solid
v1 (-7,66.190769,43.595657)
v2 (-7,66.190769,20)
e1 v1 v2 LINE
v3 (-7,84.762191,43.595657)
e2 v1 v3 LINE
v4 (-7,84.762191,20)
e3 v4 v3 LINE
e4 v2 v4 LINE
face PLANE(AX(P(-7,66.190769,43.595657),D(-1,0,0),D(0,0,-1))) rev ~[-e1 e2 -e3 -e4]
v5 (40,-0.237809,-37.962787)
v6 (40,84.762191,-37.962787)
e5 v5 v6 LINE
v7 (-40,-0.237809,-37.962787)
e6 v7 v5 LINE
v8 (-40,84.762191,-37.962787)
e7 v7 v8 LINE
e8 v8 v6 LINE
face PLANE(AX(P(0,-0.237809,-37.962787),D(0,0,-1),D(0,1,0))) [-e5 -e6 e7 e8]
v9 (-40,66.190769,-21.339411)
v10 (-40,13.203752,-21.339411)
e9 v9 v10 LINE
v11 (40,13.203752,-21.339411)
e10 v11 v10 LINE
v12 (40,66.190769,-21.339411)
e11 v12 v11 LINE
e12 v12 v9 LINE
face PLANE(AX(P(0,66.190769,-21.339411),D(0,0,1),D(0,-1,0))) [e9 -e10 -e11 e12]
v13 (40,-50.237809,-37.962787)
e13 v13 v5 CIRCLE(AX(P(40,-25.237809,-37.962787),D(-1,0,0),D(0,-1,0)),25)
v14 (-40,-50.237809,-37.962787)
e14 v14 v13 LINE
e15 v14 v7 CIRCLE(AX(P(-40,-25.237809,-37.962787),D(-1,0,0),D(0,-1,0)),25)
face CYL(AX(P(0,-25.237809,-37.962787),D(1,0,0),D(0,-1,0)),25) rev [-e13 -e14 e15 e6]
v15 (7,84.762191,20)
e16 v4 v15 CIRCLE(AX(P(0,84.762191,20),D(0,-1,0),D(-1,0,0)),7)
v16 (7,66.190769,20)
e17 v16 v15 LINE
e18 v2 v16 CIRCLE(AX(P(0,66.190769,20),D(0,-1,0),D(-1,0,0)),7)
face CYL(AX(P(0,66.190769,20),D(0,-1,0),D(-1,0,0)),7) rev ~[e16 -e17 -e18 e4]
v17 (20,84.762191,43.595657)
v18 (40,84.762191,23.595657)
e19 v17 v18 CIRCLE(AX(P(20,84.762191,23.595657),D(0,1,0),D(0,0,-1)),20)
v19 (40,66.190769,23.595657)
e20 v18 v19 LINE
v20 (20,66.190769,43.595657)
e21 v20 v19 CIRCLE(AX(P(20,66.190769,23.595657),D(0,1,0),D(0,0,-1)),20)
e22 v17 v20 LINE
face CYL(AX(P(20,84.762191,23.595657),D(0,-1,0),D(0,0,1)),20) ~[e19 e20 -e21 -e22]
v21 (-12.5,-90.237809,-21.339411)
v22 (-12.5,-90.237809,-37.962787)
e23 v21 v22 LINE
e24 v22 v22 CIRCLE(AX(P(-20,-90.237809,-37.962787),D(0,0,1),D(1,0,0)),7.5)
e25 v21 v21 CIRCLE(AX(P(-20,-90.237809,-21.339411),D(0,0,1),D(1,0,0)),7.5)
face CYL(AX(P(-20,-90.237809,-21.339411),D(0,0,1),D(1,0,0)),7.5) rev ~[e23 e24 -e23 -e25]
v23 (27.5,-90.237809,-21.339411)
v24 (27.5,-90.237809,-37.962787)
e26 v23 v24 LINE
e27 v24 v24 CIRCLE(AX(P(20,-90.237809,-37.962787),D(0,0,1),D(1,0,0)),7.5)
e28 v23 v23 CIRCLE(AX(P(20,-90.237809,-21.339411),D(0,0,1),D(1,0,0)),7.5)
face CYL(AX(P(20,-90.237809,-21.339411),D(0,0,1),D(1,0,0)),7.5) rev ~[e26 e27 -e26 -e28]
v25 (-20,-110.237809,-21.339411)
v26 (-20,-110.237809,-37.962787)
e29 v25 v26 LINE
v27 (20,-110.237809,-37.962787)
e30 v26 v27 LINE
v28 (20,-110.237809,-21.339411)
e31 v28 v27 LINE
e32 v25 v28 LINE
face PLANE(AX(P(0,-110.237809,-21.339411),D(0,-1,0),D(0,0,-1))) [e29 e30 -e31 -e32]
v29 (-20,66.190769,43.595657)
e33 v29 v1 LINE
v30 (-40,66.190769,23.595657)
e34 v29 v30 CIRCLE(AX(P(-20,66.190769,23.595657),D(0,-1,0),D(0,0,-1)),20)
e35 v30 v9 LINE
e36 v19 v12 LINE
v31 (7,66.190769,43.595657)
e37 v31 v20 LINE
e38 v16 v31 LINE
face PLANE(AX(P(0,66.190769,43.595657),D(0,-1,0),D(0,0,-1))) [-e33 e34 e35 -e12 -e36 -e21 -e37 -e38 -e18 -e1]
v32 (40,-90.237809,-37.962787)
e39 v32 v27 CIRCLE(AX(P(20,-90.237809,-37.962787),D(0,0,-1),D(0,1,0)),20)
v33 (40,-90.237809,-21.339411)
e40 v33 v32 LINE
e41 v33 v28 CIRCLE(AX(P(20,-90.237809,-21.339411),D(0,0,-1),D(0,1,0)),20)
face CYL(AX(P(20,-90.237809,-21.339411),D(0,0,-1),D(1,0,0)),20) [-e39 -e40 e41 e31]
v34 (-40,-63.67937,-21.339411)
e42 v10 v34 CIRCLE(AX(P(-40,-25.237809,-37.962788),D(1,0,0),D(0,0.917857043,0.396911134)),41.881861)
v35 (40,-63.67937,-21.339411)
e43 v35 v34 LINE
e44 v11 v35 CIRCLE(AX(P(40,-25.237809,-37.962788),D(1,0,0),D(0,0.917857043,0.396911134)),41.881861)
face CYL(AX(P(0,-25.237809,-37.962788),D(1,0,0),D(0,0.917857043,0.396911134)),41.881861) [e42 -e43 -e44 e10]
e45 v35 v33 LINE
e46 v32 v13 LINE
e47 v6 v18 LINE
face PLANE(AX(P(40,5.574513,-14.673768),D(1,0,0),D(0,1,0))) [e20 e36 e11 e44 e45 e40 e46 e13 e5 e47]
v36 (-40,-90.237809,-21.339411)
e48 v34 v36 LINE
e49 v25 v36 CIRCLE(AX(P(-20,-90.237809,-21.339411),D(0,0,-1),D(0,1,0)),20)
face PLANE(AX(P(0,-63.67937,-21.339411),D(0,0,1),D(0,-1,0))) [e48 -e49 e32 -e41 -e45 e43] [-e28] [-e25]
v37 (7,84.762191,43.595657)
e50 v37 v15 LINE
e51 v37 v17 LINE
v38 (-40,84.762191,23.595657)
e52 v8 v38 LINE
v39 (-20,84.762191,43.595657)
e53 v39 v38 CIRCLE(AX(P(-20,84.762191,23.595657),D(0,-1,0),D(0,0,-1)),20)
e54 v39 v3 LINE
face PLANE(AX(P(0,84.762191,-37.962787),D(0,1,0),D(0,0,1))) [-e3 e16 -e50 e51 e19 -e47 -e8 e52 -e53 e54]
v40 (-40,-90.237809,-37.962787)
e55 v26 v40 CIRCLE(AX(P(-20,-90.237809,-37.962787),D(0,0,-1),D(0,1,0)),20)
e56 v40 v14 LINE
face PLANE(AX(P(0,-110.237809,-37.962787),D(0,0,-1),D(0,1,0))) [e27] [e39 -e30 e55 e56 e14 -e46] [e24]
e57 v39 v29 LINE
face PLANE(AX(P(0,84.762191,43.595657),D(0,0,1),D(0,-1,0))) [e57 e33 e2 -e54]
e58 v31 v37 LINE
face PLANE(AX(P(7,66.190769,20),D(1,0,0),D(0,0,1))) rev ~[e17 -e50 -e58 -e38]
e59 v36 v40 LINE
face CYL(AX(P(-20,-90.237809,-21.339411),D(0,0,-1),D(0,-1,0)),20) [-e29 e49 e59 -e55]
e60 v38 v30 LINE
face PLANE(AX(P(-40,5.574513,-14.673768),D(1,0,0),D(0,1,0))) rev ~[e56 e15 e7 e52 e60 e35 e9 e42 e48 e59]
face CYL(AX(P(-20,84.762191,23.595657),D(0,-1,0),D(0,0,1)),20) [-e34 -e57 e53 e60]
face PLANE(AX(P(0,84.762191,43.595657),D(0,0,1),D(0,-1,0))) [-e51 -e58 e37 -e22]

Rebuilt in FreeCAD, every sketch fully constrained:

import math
import FreeCAD as App
import Part
import Sketcher
from FreeCAD import Vector
Q = App.Units.Quantity


def edges_at(feature, points):
    """Names of the edges that pass closest to the given points."""
    edges = feature.Shape.Edges
    near = lambda p: min(range(len(edges)), key=lambda i: edges[i].distToShape(Part.Vertex(*p))[0])
    return sorted({f"Edge{near(p) + 1}" for p in points})

doc = App.newDocument("Part")
body = doc.addObject("PartDesign::Body", "Body")

sketch1 = body.newObject("Sketcher::SketchObject", "Sketch")
sketch1.AttachmentSupport = (doc.getObject("YZ_Plane"), [""])
sketch1.MapMode = "FlatFace"
sketch1.addGeometry(Part.LineSegment(Vector(-64, -21, 0), Vector(-110, -21, 0)), False)
sketch1.addGeometry(Part.LineSegment(Vector(-110, -21, 0), Vector(-110, -38, 0)), False)
sketch1.addGeometry(Part.LineSegment(Vector(-110, -38, 0), Vector(-50, -38, 0)), False)
sketch1.addGeometry(Part.ArcOfCircle(Part.Circle(Vector(-25, -38, 0), Vector(0, 0, 1), 25), math.radians(0), math.radians(180)), False)
sketch1.addGeometry(Part.LineSegment(Vector(0, -38, 0), Vector(85, -38, 0)), False)
sketch1.addGeometry(Part.LineSegment(Vector(85, -38, 0), Vector(85, 44, 0)), False)
sketch1.addGeometry(Part.LineSegment(Vector(85, 44, 0), Vector(66, 44, 0)), False)
sketch1.addGeometry(Part.LineSegment(Vector(66, 44, 0), Vector(66, -21, 0)), False)
sketch1.addGeometry(Part.LineSegment(Vector(66, -21, 0), Vector(13, -21, 0)), False)
sketch1.addGeometry(Part.ArcOfCircle(Part.Circle(Vector(-25, -38, 0), Vector(0, 0, 1), 42), math.radians(23), math.radians(157)), False)
sketch1.addConstraint(Sketcher.Constraint("Coincident", 0, 2, 1, 1))
sketch1.addConstraint(Sketcher.Constraint("Coincident", 1, 2, 2, 1))
sketch1.addConstraint(Sketcher.Constraint("Coincident", 2, 2, 3, 2))
sketch1.addConstraint(Sketcher.Constraint("Coincident", 3, 1, 4, 1))
sketch1.addConstraint(Sketcher.Constraint("Coincident", 4, 2, 5, 1))
sketch1.addConstraint(Sketcher.Constraint("Coincident", 5, 2, 6, 1))
sketch1.addConstraint(Sketcher.Constraint("Coincident", 6, 2, 7, 1))
sketch1.addConstraint(Sketcher.Constraint("Coincident", 7, 2, 8, 1))
sketch1.addConstraint(Sketcher.Constraint("Coincident", 8, 2, 9, 1))
sketch1.addConstraint(Sketcher.Constraint("Coincident", 9, 2, 0, 1))
sketch1.addConstraint(Sketcher.Constraint("Horizontal", 0))
sketch1.addConstraint(Sketcher.Constraint("Vertical", 1))
sketch1.addConstraint(Sketcher.Constraint("Horizontal", 2))
sketch1.addConstraint(Sketcher.Constraint("Horizontal", 4))
sketch1.addConstraint(Sketcher.Constraint("Vertical", 5))
sketch1.addConstraint(Sketcher.Constraint("Horizontal", 6))
sketch1.addConstraint(Sketcher.Constraint("Vertical", 7))
sketch1.addConstraint(Sketcher.Constraint("Horizontal", 8))
sketch1.addConstraint(Sketcher.Constraint("Coincident", 9, 3, 3, 3))
sketch1.addConstraint(Sketcher.Constraint("Horizontal", 9, 3, 1, 2))
sketch1.addConstraint(Sketcher.Constraint("Horizontal", 2, 2, 3, 1))
sketch1.addConstraint(Sketcher.Constraint("Horizontal", 0, 2, 7, 2))
sketch1.addConstraint(Sketcher.Constraint("Radius", 3, Q("25 mm")))
sketch1.addConstraint(Sketcher.Constraint("DistanceX", 2, 1, 2, 2, Q("60 mm")))
sketch1.addConstraint(Sketcher.Constraint("DistanceX", 4, 1, 4, 2, Q("85 mm")))
sketch1.addConstraint(Sketcher.Constraint("Radius", 9, Q("41.881861 mm")))
sketch1.addConstraint(Sketcher.Constraint("DistanceX", 0, 2, 0, 1, Q("46.558439 mm")))
sketch1.addConstraint(Sketcher.Constraint("DistanceX", 6, 2, 6, 1, Q("18.571422 mm")))
sketch1.addConstraint(Sketcher.Constraint("DistanceY", 7, 2, 7, 1, Q("64.935068 mm")))
sketch1.addConstraint(Sketcher.Constraint("DistanceX", 3, 3, -1, 1, Q("25.237809 mm")))
sketch1.addConstraint(Sketcher.Constraint("DistanceY", 0, 2, -1, 1, Q("21.339411 mm")))
pad1 = body.newObject("PartDesign::Pad", "Pad")
pad1.Profile = sketch1
pad1.Length = 80
pad1.Midplane = True
doc.recompute()

fillet = body.newObject("PartDesign::Fillet", "Fillet")
fillet.Base = (pad1, edges_at(pad1, [
    (40, -110.238, -29.651),
    (-40, -110.238, -29.651),
    (40, 75.476, 43.596),
    (-40, 75.476, 43.596),
]))
fillet.Radius = 20

sketch2 = body.newObject("Sketcher::SketchObject", "Sketch001")
sketch2.AttachmentSupport = (doc.getObject("XZ_Plane"), [""])
sketch2.MapMode = "FlatFace"
sketch2.AttachmentOffset = App.Placement(Vector(0, 0, -66.190769), App.Rotation())
sketch2.addGeometry(Part.LineSegment(Vector(-7, 44, 0), Vector(-7, 20, 0)), False)
sketch2.addGeometry(Part.ArcOfCircle(Part.Circle(Vector(0, 20, 0), Vector(0, 0, 1), 7), math.radians(180), math.radians(360)), False)
sketch2.addGeometry(Part.LineSegment(Vector(7, 20, 0), Vector(7, 44, 0)), False)
sketch2.addGeometry(Part.LineSegment(Vector(7, 44, 0), Vector(-7, 44, 0)), False)
sketch2.addConstraint(Sketcher.Constraint("Tangent", 0, 2, 1, 1))
sketch2.addConstraint(Sketcher.Constraint("Tangent", 1, 2, 2, 1))
sketch2.addConstraint(Sketcher.Constraint("Coincident", 2, 2, 3, 1))
sketch2.addConstraint(Sketcher.Constraint("Coincident", 3, 2, 0, 1))
sketch2.addConstraint(Sketcher.Constraint("Vertical", 0))
sketch2.addConstraint(Sketcher.Constraint("Vertical", 2))
sketch2.addConstraint(Sketcher.Constraint("Horizontal", 3))
sketch2.addConstraint(Sketcher.Constraint("PointOnObject", 1, 3, -2))
sketch2.addConstraint(Sketcher.Constraint("Radius", 1, Q("7 mm")))
sketch2.addConstraint(Sketcher.Constraint("DistanceY", -1, 1, 1, 3, Q("20 mm")))
sketch2.addConstraint(Sketcher.Constraint("DistanceY", 0, 2, 0, 1, Q("23.595657 mm")))
pocket1 = body.newObject("PartDesign::Pocket", "Pocket")
pocket1.Profile = sketch2
pocket1.Type = "ThroughAll"

sketch3 = body.newObject("Sketcher::SketchObject", "Sketch002")
sketch3.AttachmentSupport = (doc.getObject("XY_Plane"), [""])
sketch3.MapMode = "FlatFace"
sketch3.AttachmentOffset = App.Placement(Vector(0, 0, -21.339411), App.Rotation())
sketch3.addGeometry(Part.Circle(Vector(-20, -90, 0), Vector(0, 0, 1), 8), False)
sketch3.addGeometry(Part.Circle(Vector(20, -90, 0), Vector(0, 0, 1), 8), False)
sketch3.addConstraint(Sketcher.Constraint("Equal", 0, 1))
sketch3.addConstraint(Sketcher.Constraint("Symmetric", 0, 3, 1, 3, -2))
sketch3.addConstraint(Sketcher.Constraint("Diameter", 0, Q("15 mm")))
sketch3.addConstraint(Sketcher.Constraint("DistanceX", 0, 3, -1, 1, Q("20 mm")))
sketch3.addConstraint(Sketcher.Constraint("DistanceY", 0, 3, -1, 1, Q("90.237809 mm")))
pocket2 = body.newObject("PartDesign::Pocket", "Pocket001")
pocket2.Profile = sketch3
pocket2.Type = "ThroughAll"

doc.recompute()
